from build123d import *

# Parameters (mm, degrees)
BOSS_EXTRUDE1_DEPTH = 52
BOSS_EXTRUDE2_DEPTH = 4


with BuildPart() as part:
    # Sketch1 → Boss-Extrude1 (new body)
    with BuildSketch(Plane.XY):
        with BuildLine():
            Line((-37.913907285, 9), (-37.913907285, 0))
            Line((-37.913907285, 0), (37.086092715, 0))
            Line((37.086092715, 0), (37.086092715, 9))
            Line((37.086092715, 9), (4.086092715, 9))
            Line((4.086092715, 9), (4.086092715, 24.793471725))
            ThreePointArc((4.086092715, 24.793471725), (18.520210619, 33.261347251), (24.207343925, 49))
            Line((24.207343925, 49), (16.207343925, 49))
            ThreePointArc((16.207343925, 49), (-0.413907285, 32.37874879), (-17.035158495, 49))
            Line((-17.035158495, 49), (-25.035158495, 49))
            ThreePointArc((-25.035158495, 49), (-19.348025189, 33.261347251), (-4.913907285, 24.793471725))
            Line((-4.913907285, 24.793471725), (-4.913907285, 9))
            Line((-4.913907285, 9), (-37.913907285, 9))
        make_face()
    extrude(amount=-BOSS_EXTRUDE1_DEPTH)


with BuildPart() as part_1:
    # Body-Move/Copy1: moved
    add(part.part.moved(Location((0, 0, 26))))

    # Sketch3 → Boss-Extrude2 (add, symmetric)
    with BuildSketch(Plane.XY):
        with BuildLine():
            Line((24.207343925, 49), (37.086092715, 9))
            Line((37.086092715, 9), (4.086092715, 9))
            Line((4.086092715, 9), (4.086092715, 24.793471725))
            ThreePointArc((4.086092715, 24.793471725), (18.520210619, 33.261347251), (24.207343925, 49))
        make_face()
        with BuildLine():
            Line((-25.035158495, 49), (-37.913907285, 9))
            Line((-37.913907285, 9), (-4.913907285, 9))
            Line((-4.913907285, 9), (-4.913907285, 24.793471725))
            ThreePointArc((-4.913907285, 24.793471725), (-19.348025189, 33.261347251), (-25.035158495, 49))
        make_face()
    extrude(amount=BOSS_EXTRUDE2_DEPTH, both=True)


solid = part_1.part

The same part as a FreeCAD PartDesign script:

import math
import FreeCAD as App
import Part
import Sketcher
Q = App.Units.Quantity

doc = App.newDocument("Part")
body = doc.addObject("PartDesign::Body", "Body")

# Sketch on XY plane
sketch1 = doc.addObject("Sketcher::SketchObject", "Sketch")
body.addObject(sketch1)
sketch1.AttachmentSupport = (doc.XY_Plane, [""])
sketch1.MapMode = "FlatFace"
sketch1.addGeometry([
    Part.LineSegment(App.Vector(-37.913907, 9, 0), App.Vector(-37.913907, 0, 0)),  # 0
    Part.LineSegment(App.Vector(-37.913907, 0, 0), App.Vector(37.086093, 0, 0)),  # 1
    Part.LineSegment(App.Vector(37.086093, 0, 0), App.Vector(37.086093, 9, 0)),  # 2
    Part.LineSegment(App.Vector(37.086093, 9, 0), App.Vector(4.086093, 9, 0)),  # 3
    Part.LineSegment(App.Vector(4.086093, 9, 0), App.Vector(4.086093, 24.793472, 0)),  # 4
    Part.ArcOfCircle(Part.Circle(App.Vector(-0.413907, 49, 0), App.Vector(0, 0, 1), 24.621251), math.radians(-79.468916), math.radians(0)),  # 5
    Part.LineSegment(App.Vector(24.207344, 49, 0), App.Vector(16.207344, 49, 0)),  # 6
    Part.ArcOfCircle(Part.Circle(App.Vector(-0.413907, 49, 0), App.Vector(0, 0, 1), 16.621251), math.radians(180), math.radians(360)),  # 7
    Part.LineSegment(App.Vector(-17.035158, 49, 0), App.Vector(-25.035158, 49, 0)),  # 8
    Part.ArcOfCircle(Part.Circle(App.Vector(-0.413907, 49, 0), App.Vector(0, 0, 1), 24.621251), math.radians(180), math.radians(259.468916)),  # 9
    Part.LineSegment(App.Vector(-4.913907, 24.793472, 0), App.Vector(-4.913907, 9, 0)),  # 10
    Part.LineSegment(App.Vector(-4.913907, 9, 0), App.Vector(-37.913907, 9, 0)),  # 11
], False)
sketch1.addConstraint([
    Sketcher.Constraint("Coincident", 0, 2, 1, 1),
    Sketcher.Constraint("Coincident", 1, 2, 2, 1),
    Sketcher.Constraint("Coincident", 2, 2, 3, 1),
    Sketcher.Constraint("Coincident", 3, 2, 4, 1),
    Sketcher.Constraint("Coincident", 4, 2, 5, 1),
    Sketcher.Constraint("Coincident", 5, 2, 6, 1),
    Sketcher.Constraint("Coincident", 6, 2, 7, 2),
    Sketcher.Constraint("Coincident", 7, 1, 8, 1),
    Sketcher.Constraint("Coincident", 8, 2, 9, 1),
    Sketcher.Constraint("Coincident", 9, 2, 10, 1),
    Sketcher.Constraint("Coincident", 10, 2, 11, 1),
    Sketcher.Constraint("Coincident", 11, 2, 0, 1),
    Sketcher.Constraint("Vertical", 0),
    Sketcher.Constraint("Horizontal", 1),
    Sketcher.Constraint("Vertical", 2),
    Sketcher.Constraint("Horizontal", 3),
    Sketcher.Constraint("Vertical", 4),
    Sketcher.Constraint("Horizontal", 6),
    Sketcher.Constraint("Horizontal", 8),
    Sketcher.Constraint("Vertical", 10),
    Sketcher.Constraint("Horizontal", 11),
    Sketcher.Constraint("Coincident", 7, 3, 5, 3),
    Sketcher.Constraint("Coincident", 9, 3, 5, 3),
    Sketcher.Constraint("Equal", 5, 9),
    Sketcher.Constraint("PointOnObject", 0, 2, -1),
    Sketcher.Constraint("Horizontal", 9, 3, 5, 2),
    Sketcher.Constraint("Horizontal", 6, 2, 7, 1),
    Sketcher.Constraint("Horizontal", 4, 2, 9, 2),
    Sketcher.Constraint("Horizontal", 3, 2, 10, 2),
    Sketcher.Constraint("Equal", 3, 11),
    Sketcher.Constraint("DistanceX", 1, 1, 1, 2, Q("75 mm")),
    Sketcher.Constraint("DistanceX", 3, 2, 3, 1, Q("33 mm")),
    Sketcher.Constraint("DistanceX", 6, 2, 6, 1, Q("8 mm")),
    Sketcher.Constraint("DistanceY", 0, 2, 0, 1, Q("9 mm")),
    Sketcher.Constraint("DistanceY", -1, 1, 5, 3, Q("49 mm")),
    Sketcher.Constraint("Radius", 5, Q("24.621251 mm")),
    Sketcher.Constraint("DistanceX", 7, 1, -1, 1, Q("17.035158 mm")),
])
pad1 = doc.addObject("PartDesign::Pad", "Pad")
body.addObject(pad1)
pad1.Profile = sketch1
pad1.Length = 52
pad1.Reversed = True
body2 = doc.addObject("PartDesign::Body", "Body001")
doc.recompute()

body.Placement = App.Placement(App.Vector(0, 0, 26), App.Rotation(App.Vector(0, 0, 1), 0))
boolean = doc.addObject("PartDesign::Boolean", "Boolean")
body2.addObject(boolean)
boolean.Type = "Fuse"
boolean.addObjects([body])

# Sketch on XY plane
sketch2 = doc.addObject("Sketcher::SketchObject", "Sketch001")
body2.addObject(sketch2)
sketch2.AttachmentSupport = (doc.getObject("XY_Plane001"), [""])
sketch2.MapMode = "FlatFace"
sketch2.addGeometry([
    Part.LineSegment(App.Vector(37.086093, 9, 0), App.Vector(24.207344, 49, 0)),  # 0
    Part.ArcOfCircle(Part.Circle(App.Vector(-0.413907, 49, 0), App.Vector(0, 0, 1), 24.621251), math.radians(-79.468916), math.radians(0)),  # 1
    Part.LineSegment(App.Vector(4.086093, 24.793472, 0), App.Vector(4.086093, 9, 0)),  # 2
    Part.LineSegment(App.Vector(4.086093, 9, 0), App.Vector(37.086093, 9, 0)),  # 3
    Part.LineSegment(App.Vector(-25.035158, 49, 0), App.Vector(-37.913907, 9, 0)),  # 4
    Part.LineSegment(App.Vector(-37.913907, 9, 0), App.Vector(-4.913907, 9, 0)),  # 5
    Part.LineSegment(App.Vector(-4.913907, 9, 0), App.Vector(-4.913907, 24.793472, 0)),  # 6
    Part.ArcOfCircle(Part.Circle(App.Vector(-0.413907, 49, 0), App.Vector(0, 0, 1), 24.621251), math.radians(180), math.radians(259.468916)),  # 7
], False)
sketch2.addConstraint([
    Sketcher.Constraint("Coincident", 0, 2, 1, 2),
    Sketcher.Constraint("Coincident", 1, 1, 2, 1),
    Sketcher.Constraint("Coincident", 2, 2, 3, 1),
    Sketcher.Constraint("Coincident", 3, 2, 0, 1),
    Sketcher.Constraint("Coincident", 4, 2, 5, 1),
    Sketcher.Constraint("Coincident", 5, 2, 6, 1),
    Sketcher.Constraint("Coincident", 6, 2, 7, 2),
    Sketcher.Constraint("Coincident", 7, 1, 4, 1),
    Sketcher.Constraint("Vertical", 2),
    Sketcher.Constraint("Horizontal", 3),
    Sketcher.Constraint("Horizontal", 5),
    Sketcher.Constraint("Vertical", 6),
    Sketcher.Constraint("Coincident", 7, 3, 1, 3),
    Sketcher.Constraint("Equal", 1, 7),
    Sketcher.Constraint("Horizontal", 7, 3, 0, 2),
    Sketcher.Constraint("Horizontal", 3, 2, 4, 2),
    Sketcher.Constraint("Horizontal", 1, 1, 6, 2),
    Sketcher.Constraint("Horizontal", 0, 2, 7, 1),
    Sketcher.Constraint("Equal", 3, 5),
    Sketcher.Constraint("DistanceX", 3, 1, 3, 2, Q("33 mm")),
    Sketcher.Constraint("DistanceY", -1, 1, 1, 3, Q("49 mm")),
    Sketcher.Constraint("DistanceY", -1, 1, 2, 2, Q("9 mm")),
    Sketcher.Constraint("DistanceX", 4, 2, 2, 2, Q("42 mm")),
    Sketcher.Constraint("Radius", 1, Q("24.621251 mm")),
    Sketcher.Constraint("DistanceX", 7, 1, -1, 1, Q("25.035158 mm")),
])
pad2 = doc.addObject("PartDesign::Pad", "Pad001")
body2.addObject(pad2)
pad2.Profile = sketch2
pad2.Length = 8
pad2.Midplane = True

doc.recompute()
